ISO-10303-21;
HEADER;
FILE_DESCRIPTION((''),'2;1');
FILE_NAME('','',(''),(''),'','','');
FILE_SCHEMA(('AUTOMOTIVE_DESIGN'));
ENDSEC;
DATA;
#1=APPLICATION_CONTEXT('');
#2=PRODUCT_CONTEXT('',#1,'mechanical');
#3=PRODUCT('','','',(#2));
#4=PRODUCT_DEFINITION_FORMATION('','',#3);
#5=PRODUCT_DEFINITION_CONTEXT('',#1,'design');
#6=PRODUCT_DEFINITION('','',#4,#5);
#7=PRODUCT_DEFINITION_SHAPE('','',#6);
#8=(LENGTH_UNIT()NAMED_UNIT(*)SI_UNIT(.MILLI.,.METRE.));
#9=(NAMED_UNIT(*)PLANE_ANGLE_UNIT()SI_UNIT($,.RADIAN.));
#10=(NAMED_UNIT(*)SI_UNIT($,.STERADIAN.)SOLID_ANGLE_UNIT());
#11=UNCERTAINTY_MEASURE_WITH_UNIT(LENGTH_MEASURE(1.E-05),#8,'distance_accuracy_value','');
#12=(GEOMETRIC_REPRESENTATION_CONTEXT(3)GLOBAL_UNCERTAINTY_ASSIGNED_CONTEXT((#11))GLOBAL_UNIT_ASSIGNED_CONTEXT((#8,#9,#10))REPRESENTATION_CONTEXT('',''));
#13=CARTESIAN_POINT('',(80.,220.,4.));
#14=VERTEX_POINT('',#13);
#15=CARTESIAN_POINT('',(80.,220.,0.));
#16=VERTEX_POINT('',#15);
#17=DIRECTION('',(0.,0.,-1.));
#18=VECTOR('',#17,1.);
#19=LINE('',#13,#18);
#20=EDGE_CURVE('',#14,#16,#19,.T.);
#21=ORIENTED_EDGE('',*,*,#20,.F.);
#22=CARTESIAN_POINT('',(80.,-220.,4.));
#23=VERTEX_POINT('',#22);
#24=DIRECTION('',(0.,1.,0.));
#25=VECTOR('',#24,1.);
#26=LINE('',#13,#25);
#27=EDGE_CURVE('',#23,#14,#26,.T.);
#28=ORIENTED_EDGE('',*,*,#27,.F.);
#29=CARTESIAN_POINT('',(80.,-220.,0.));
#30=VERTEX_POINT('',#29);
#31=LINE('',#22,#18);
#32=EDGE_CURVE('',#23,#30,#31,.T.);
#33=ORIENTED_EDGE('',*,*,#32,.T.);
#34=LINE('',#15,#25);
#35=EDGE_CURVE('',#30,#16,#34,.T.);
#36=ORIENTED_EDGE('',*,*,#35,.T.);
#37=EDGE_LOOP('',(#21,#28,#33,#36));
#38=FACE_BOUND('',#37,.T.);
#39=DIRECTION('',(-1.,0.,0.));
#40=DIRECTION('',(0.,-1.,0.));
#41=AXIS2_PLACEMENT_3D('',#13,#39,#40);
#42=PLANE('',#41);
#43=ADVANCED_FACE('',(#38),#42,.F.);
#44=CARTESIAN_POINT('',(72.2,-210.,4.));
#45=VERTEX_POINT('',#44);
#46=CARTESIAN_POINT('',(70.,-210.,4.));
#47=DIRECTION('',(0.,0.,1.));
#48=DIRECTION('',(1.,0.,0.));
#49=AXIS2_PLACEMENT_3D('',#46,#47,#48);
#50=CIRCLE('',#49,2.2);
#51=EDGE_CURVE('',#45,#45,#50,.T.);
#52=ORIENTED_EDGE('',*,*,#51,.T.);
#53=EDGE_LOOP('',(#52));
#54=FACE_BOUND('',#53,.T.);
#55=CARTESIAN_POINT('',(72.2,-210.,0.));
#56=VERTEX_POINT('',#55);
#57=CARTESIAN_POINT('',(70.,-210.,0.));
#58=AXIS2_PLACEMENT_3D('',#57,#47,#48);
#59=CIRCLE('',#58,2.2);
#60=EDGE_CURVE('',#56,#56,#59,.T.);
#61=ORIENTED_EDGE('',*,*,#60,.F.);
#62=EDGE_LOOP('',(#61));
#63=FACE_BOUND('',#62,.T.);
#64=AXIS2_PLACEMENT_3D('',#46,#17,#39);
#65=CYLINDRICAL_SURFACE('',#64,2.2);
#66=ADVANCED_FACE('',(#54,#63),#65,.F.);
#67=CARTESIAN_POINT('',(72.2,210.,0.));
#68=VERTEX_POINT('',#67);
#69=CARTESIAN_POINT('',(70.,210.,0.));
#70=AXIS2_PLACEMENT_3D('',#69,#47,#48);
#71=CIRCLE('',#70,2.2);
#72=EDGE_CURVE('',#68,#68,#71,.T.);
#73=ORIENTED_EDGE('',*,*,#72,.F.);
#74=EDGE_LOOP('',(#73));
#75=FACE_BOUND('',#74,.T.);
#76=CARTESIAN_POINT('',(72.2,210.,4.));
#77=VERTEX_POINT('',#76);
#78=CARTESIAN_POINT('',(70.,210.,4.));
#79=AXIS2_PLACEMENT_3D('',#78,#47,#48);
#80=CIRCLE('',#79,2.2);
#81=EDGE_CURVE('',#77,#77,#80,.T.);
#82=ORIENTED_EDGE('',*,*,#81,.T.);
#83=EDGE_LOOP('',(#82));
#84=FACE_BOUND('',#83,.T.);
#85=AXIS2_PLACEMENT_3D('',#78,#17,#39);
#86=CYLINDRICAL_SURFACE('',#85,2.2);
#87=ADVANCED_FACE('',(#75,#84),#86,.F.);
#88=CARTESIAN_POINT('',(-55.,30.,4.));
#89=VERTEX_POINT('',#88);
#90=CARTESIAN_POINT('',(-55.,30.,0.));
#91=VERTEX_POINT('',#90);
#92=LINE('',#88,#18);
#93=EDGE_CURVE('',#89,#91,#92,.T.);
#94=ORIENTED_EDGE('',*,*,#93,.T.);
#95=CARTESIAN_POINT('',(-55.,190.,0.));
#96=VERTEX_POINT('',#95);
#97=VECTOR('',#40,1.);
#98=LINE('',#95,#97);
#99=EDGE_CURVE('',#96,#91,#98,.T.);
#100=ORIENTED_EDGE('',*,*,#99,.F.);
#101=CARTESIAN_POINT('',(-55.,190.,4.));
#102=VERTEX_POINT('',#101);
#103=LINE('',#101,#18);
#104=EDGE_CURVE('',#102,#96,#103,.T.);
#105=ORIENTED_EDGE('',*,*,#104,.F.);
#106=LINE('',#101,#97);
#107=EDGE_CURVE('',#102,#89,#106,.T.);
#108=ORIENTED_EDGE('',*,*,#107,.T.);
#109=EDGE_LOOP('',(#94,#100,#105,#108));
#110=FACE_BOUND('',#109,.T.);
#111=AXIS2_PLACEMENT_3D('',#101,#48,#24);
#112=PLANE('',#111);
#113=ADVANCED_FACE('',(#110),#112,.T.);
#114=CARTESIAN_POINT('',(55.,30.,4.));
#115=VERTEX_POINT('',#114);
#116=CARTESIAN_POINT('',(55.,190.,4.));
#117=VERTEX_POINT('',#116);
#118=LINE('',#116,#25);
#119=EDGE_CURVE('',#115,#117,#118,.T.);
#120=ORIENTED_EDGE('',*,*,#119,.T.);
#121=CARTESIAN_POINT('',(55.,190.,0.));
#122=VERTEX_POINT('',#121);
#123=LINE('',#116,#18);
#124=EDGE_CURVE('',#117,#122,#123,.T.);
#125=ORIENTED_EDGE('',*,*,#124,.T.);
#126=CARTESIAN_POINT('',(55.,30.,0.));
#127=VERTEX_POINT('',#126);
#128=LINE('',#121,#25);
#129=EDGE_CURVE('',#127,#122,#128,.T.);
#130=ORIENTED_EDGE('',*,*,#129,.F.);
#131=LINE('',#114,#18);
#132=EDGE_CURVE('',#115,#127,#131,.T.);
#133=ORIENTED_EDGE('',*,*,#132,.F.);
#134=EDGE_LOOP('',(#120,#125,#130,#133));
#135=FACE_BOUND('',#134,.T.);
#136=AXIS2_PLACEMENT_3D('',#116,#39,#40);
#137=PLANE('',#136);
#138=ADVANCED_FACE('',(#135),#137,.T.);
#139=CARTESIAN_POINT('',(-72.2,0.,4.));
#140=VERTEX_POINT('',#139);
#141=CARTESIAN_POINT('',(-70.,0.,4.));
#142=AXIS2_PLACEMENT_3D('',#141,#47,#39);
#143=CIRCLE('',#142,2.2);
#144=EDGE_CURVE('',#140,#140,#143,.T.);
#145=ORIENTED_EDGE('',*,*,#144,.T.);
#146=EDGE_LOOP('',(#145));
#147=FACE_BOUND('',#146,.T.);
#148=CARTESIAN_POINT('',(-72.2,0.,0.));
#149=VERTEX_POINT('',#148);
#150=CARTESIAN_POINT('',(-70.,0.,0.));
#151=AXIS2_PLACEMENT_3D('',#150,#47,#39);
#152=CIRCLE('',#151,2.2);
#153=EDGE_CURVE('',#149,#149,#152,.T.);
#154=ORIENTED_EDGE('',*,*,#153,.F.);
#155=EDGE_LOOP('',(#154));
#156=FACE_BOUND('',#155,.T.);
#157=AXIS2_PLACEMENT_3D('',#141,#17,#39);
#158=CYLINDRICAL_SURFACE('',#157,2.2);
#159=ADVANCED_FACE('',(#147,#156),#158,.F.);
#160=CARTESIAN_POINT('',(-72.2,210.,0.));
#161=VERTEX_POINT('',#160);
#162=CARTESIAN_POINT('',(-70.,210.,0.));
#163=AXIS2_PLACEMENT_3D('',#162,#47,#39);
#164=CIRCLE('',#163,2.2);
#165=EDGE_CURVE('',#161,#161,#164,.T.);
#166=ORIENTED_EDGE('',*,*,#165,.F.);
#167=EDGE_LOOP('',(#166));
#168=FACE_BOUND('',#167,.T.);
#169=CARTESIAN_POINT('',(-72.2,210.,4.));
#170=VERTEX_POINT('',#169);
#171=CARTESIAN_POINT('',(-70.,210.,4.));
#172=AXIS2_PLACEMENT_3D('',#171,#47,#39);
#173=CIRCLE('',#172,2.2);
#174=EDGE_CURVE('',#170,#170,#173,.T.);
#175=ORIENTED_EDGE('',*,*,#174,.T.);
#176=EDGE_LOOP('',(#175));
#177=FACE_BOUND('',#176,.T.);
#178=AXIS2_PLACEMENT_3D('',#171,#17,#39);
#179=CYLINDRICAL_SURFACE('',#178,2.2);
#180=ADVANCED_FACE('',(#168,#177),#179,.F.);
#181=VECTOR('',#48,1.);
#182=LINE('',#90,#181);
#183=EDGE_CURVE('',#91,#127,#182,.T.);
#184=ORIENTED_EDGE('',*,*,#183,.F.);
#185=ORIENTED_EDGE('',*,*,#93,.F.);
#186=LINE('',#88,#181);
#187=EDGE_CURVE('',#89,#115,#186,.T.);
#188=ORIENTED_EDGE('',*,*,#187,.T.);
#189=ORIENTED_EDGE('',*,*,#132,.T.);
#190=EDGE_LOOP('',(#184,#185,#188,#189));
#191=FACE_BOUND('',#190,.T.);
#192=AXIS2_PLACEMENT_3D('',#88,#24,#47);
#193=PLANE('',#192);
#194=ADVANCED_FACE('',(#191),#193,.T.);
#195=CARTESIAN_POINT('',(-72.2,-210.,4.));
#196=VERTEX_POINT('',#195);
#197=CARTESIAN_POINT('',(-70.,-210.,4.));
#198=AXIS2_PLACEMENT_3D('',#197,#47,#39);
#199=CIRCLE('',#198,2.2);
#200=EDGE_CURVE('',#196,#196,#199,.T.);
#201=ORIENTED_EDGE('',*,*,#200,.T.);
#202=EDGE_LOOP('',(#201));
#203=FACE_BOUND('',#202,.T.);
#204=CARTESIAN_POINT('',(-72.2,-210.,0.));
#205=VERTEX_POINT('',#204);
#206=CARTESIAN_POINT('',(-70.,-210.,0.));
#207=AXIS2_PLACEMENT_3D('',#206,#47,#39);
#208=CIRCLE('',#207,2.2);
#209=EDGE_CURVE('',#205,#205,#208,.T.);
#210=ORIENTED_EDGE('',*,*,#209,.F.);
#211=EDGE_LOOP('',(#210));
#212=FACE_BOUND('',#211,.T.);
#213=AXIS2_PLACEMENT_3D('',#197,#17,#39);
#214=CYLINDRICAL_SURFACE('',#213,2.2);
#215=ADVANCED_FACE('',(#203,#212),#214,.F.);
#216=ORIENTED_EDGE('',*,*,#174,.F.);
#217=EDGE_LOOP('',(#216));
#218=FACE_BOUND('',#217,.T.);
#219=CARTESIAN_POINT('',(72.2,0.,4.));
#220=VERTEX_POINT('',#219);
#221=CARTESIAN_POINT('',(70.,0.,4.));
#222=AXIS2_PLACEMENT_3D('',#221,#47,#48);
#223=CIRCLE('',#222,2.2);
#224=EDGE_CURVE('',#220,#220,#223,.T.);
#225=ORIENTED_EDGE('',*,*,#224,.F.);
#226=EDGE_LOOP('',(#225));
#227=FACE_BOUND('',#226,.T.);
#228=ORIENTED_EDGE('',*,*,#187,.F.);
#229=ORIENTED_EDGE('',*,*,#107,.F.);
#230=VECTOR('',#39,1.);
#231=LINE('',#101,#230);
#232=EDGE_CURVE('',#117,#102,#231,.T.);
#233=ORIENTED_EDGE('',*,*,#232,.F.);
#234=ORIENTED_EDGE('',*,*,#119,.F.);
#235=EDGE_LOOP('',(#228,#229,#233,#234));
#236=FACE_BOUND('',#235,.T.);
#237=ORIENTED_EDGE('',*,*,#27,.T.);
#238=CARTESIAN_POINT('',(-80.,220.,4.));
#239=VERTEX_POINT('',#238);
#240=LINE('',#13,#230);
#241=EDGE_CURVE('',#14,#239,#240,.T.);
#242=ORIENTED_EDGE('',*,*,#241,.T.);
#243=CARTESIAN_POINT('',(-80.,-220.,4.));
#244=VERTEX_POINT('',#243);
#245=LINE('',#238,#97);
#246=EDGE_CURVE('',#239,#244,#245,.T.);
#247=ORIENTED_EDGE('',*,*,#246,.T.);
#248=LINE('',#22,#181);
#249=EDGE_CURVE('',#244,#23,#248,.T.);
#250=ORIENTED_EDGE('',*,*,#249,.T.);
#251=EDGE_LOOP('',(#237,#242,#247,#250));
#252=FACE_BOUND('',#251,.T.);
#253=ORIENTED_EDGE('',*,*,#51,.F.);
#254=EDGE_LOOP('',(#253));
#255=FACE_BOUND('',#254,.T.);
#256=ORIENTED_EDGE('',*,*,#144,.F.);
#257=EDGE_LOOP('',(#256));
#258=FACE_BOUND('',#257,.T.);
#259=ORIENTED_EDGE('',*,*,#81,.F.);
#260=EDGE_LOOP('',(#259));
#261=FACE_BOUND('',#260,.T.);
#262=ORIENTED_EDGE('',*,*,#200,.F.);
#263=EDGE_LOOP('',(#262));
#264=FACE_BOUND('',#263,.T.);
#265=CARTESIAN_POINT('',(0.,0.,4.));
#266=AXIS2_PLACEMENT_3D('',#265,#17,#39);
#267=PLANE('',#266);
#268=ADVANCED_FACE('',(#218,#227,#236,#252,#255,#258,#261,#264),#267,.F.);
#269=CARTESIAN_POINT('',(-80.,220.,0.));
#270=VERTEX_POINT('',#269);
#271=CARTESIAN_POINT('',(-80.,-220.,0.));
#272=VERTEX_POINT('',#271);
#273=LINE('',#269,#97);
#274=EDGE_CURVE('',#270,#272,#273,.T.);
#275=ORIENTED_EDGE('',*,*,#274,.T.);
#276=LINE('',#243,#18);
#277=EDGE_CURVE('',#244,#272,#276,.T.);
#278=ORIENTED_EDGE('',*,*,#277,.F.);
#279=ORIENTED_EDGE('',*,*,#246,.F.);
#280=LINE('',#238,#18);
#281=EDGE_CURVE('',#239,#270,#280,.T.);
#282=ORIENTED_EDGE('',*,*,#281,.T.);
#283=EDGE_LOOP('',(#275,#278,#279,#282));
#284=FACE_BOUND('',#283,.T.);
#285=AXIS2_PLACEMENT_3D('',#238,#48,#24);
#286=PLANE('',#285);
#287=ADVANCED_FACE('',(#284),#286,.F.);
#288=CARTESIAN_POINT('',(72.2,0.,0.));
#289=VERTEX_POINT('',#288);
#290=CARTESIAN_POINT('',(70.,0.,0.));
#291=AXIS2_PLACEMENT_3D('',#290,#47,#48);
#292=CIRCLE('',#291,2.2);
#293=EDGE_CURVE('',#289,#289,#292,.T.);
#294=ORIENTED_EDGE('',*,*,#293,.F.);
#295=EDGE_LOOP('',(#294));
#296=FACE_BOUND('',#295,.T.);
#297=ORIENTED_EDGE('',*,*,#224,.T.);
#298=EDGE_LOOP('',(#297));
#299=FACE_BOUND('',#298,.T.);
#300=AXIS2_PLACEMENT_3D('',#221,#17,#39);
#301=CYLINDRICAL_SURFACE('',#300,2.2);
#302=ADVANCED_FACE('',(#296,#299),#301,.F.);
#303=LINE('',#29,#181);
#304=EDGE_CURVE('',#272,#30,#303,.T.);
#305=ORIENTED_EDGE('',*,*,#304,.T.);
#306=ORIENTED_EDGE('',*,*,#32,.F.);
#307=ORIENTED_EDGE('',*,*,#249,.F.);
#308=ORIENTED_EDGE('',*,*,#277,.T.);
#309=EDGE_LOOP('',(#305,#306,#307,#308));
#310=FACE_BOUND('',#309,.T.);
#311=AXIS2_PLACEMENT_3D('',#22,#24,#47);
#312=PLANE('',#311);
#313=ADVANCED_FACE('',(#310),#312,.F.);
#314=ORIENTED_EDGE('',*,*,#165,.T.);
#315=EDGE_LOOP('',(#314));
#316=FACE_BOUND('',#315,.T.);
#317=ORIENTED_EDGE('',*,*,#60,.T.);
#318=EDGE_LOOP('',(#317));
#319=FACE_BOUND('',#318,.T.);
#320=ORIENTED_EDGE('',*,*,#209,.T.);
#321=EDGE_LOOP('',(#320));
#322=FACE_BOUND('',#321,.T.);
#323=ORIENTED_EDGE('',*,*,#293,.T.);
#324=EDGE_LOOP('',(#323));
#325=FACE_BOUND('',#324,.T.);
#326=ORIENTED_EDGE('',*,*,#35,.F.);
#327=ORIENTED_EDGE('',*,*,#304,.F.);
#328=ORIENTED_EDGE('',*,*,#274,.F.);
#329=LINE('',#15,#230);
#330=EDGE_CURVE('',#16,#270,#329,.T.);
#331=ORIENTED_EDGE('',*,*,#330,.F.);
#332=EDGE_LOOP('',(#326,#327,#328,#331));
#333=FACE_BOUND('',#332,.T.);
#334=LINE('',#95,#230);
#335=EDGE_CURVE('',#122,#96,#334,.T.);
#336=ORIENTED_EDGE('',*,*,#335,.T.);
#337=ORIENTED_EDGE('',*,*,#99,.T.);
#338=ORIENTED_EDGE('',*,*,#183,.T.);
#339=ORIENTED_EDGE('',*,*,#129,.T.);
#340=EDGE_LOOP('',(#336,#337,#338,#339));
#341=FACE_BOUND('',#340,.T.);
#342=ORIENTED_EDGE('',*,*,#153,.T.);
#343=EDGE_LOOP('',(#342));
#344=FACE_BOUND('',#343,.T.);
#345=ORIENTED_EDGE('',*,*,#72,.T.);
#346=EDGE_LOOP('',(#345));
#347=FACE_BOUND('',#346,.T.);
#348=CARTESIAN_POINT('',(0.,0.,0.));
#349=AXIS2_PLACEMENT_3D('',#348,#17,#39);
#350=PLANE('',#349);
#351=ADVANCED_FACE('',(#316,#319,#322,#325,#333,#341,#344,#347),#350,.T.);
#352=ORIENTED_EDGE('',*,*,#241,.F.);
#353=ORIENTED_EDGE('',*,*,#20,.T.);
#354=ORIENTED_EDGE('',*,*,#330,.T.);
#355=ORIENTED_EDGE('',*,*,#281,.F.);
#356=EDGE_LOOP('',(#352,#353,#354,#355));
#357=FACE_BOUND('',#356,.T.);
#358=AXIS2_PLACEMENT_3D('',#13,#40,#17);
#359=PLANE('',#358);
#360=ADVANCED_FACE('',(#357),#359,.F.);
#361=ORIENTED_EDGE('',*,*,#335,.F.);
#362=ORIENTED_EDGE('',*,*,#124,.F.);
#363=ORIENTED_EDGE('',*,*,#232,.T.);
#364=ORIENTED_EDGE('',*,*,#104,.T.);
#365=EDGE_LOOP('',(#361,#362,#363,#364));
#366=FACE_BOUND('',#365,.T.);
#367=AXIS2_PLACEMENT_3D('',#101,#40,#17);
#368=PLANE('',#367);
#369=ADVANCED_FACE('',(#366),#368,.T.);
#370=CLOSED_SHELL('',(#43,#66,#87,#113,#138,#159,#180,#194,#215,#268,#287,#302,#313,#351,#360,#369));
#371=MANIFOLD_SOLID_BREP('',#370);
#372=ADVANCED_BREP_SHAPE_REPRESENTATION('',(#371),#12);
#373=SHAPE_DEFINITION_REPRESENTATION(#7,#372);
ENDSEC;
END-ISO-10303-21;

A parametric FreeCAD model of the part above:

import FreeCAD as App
import Part
import Sketcher
from FreeCAD import Vector


def add_polygon(sketch, points):
    """Adds a closed chain of lines whose ends are joined by coincident constraints."""
    first, n = sketch.GeometryCount, len(points)
    for a, b in zip(points, points[1:] + points[:1]):
        sketch.addGeometry(Part.LineSegment(App.Vector(*a, 0), App.Vector(*b, 0)), False)
    for i in range(n):
        sketch.addConstraint(Sketcher.Constraint("Coincident", first + i, 2, first + (i + 1) % n, 1))

doc = App.newDocument("Part")
params = doc.addObject("Spreadsheet::Sheet", "Params")
for row, (alias, value) in enumerate([
    ("sketch1_diameter", "4.4 mm"),
    ("sketch1_width", "160 mm"),
    ("sketch1_width2", "110 mm"),
    ("sketch1_height", "440 mm"),
    ("pad1_length", "4 mm"),
], start=1):
    params.set(f"A{row}", alias)
    params.set(f"B{row}", "=" + value)
    params.setAlias(f"B{row}", alias)

body = doc.addObject("PartDesign::Body", "Body")

sketch1 = doc.addObject("Sketcher::SketchObject", "Sketch")
body.addObject(sketch1)
sketch1.AttachmentSupport = (doc.XY_Plane, [""])
sketch1.MapMode = "FlatFace"
add_polygon(sketch1, [(-80, 220), (-80, -220), (80, -220), (80, 220)])
sketch1.addGeometry(Part.Circle(Vector(-70, -210, 0), Vector(0, 0, 1), 2.2), False)
sketch1.addGeometry(Part.Circle(Vector(70, -210, 0), Vector(0, 0, 1), 2.2), False)
sketch1.addGeometry(Part.Circle(Vector(-70, 0, 0), Vector(0, 0, 1), 2.2), False)
sketch1.addGeometry(Part.Circle(Vector(-70, 210, 0), Vector(0, 0, 1), 2.2), False)
sketch1.addGeometry(Part.Circle(Vector(70, 0, 0), Vector(0, 0, 1), 2.2), False)
add_polygon(sketch1, [(55, 30), (-55, 30), (-55, 190), (55, 190)])
sketch1.addGeometry(Part.Circle(Vector(70, 210, 0), Vector(0, 0, 1), 2.2), False)
sketch1.addConstraint([
    Sketcher.Constraint("Vertical", 0),
    Sketcher.Constraint("Horizontal", 1),
    Sketcher.Constraint("Vertical", 2),
    Sketcher.Constraint("Horizontal", 3),
    Sketcher.Constraint("Horizontal", 9),
    Sketcher.Constraint("Vertical", 10),
    Sketcher.Constraint("Horizontal", 11),
    Sketcher.Constraint("Vertical", 12),
    Sketcher.Constraint("Equal", 4, 5),
    Sketcher.Constraint("Equal", 5, 6),
    Sketcher.Constraint("Equal", 6, 7),
    Sketcher.Constraint("Equal", 7, 8),
    Sketcher.Constraint("Equal", 8, 13),
    Sketcher.Constraint("Symmetric", 5, 3, 7, 3, -1, 1),
    Sketcher.Constraint("Symmetric", 6, 3, 8, 3, -1, 1),
    Sketcher.Constraint("Symmetric", 4, 3, 13, 3, -1, 1),
    Sketcher.Constraint("Symmetric", 0, 2, 2, 2, -1, 1),
    Sketcher.Constraint("Symmetric", 4, 3, 5, 3, -2),
    Sketcher.Constraint("PointOnObject", 6, 3, -1),
    Sketcher.Constraint("Vertical", 4, 3, 6, 3),
    Sketcher.Constraint("Equal", 3, 10),
    Sketcher.Constraint("Diameter", 4, 4.4),
    Sketcher.Constraint("DistanceX", 1, 1, 1, 2, 160.0),
    Sketcher.Constraint("DistanceX", 9, 2, 9, 1, 110.0),
    Sketcher.Constraint("DistanceY", 0, 2, 0, 1, 440.0),
    Sketcher.Constraint("DistanceX", 4, 3, -1, 1, 70.0),
    Sketcher.Constraint("DistanceY", 4, 3, -1, 1, 210.0),
    Sketcher.Constraint("DistanceX", 9, 2, -1, 1, 55.0),
    Sketcher.Constraint("DistanceY", -1, 1, 9, 2, 30.0),
])
sketch1.setExpression("Constraints[29]", "Params.sketch1_diameter")
sketch1.setExpression("Constraints[30]", "Params.sketch1_width")
sketch1.setExpression("Constraints[31]", "Params.sketch1_width2")
sketch1.setExpression("Constraints[32]", "Params.sketch1_height")
pad1 = doc.addObject("PartDesign::Pad", "Pad")
body.addObject(pad1)
pad1.Profile = sketch1
pad1.setExpression("Length", "Params.pad1_length")

doc.recompute()
